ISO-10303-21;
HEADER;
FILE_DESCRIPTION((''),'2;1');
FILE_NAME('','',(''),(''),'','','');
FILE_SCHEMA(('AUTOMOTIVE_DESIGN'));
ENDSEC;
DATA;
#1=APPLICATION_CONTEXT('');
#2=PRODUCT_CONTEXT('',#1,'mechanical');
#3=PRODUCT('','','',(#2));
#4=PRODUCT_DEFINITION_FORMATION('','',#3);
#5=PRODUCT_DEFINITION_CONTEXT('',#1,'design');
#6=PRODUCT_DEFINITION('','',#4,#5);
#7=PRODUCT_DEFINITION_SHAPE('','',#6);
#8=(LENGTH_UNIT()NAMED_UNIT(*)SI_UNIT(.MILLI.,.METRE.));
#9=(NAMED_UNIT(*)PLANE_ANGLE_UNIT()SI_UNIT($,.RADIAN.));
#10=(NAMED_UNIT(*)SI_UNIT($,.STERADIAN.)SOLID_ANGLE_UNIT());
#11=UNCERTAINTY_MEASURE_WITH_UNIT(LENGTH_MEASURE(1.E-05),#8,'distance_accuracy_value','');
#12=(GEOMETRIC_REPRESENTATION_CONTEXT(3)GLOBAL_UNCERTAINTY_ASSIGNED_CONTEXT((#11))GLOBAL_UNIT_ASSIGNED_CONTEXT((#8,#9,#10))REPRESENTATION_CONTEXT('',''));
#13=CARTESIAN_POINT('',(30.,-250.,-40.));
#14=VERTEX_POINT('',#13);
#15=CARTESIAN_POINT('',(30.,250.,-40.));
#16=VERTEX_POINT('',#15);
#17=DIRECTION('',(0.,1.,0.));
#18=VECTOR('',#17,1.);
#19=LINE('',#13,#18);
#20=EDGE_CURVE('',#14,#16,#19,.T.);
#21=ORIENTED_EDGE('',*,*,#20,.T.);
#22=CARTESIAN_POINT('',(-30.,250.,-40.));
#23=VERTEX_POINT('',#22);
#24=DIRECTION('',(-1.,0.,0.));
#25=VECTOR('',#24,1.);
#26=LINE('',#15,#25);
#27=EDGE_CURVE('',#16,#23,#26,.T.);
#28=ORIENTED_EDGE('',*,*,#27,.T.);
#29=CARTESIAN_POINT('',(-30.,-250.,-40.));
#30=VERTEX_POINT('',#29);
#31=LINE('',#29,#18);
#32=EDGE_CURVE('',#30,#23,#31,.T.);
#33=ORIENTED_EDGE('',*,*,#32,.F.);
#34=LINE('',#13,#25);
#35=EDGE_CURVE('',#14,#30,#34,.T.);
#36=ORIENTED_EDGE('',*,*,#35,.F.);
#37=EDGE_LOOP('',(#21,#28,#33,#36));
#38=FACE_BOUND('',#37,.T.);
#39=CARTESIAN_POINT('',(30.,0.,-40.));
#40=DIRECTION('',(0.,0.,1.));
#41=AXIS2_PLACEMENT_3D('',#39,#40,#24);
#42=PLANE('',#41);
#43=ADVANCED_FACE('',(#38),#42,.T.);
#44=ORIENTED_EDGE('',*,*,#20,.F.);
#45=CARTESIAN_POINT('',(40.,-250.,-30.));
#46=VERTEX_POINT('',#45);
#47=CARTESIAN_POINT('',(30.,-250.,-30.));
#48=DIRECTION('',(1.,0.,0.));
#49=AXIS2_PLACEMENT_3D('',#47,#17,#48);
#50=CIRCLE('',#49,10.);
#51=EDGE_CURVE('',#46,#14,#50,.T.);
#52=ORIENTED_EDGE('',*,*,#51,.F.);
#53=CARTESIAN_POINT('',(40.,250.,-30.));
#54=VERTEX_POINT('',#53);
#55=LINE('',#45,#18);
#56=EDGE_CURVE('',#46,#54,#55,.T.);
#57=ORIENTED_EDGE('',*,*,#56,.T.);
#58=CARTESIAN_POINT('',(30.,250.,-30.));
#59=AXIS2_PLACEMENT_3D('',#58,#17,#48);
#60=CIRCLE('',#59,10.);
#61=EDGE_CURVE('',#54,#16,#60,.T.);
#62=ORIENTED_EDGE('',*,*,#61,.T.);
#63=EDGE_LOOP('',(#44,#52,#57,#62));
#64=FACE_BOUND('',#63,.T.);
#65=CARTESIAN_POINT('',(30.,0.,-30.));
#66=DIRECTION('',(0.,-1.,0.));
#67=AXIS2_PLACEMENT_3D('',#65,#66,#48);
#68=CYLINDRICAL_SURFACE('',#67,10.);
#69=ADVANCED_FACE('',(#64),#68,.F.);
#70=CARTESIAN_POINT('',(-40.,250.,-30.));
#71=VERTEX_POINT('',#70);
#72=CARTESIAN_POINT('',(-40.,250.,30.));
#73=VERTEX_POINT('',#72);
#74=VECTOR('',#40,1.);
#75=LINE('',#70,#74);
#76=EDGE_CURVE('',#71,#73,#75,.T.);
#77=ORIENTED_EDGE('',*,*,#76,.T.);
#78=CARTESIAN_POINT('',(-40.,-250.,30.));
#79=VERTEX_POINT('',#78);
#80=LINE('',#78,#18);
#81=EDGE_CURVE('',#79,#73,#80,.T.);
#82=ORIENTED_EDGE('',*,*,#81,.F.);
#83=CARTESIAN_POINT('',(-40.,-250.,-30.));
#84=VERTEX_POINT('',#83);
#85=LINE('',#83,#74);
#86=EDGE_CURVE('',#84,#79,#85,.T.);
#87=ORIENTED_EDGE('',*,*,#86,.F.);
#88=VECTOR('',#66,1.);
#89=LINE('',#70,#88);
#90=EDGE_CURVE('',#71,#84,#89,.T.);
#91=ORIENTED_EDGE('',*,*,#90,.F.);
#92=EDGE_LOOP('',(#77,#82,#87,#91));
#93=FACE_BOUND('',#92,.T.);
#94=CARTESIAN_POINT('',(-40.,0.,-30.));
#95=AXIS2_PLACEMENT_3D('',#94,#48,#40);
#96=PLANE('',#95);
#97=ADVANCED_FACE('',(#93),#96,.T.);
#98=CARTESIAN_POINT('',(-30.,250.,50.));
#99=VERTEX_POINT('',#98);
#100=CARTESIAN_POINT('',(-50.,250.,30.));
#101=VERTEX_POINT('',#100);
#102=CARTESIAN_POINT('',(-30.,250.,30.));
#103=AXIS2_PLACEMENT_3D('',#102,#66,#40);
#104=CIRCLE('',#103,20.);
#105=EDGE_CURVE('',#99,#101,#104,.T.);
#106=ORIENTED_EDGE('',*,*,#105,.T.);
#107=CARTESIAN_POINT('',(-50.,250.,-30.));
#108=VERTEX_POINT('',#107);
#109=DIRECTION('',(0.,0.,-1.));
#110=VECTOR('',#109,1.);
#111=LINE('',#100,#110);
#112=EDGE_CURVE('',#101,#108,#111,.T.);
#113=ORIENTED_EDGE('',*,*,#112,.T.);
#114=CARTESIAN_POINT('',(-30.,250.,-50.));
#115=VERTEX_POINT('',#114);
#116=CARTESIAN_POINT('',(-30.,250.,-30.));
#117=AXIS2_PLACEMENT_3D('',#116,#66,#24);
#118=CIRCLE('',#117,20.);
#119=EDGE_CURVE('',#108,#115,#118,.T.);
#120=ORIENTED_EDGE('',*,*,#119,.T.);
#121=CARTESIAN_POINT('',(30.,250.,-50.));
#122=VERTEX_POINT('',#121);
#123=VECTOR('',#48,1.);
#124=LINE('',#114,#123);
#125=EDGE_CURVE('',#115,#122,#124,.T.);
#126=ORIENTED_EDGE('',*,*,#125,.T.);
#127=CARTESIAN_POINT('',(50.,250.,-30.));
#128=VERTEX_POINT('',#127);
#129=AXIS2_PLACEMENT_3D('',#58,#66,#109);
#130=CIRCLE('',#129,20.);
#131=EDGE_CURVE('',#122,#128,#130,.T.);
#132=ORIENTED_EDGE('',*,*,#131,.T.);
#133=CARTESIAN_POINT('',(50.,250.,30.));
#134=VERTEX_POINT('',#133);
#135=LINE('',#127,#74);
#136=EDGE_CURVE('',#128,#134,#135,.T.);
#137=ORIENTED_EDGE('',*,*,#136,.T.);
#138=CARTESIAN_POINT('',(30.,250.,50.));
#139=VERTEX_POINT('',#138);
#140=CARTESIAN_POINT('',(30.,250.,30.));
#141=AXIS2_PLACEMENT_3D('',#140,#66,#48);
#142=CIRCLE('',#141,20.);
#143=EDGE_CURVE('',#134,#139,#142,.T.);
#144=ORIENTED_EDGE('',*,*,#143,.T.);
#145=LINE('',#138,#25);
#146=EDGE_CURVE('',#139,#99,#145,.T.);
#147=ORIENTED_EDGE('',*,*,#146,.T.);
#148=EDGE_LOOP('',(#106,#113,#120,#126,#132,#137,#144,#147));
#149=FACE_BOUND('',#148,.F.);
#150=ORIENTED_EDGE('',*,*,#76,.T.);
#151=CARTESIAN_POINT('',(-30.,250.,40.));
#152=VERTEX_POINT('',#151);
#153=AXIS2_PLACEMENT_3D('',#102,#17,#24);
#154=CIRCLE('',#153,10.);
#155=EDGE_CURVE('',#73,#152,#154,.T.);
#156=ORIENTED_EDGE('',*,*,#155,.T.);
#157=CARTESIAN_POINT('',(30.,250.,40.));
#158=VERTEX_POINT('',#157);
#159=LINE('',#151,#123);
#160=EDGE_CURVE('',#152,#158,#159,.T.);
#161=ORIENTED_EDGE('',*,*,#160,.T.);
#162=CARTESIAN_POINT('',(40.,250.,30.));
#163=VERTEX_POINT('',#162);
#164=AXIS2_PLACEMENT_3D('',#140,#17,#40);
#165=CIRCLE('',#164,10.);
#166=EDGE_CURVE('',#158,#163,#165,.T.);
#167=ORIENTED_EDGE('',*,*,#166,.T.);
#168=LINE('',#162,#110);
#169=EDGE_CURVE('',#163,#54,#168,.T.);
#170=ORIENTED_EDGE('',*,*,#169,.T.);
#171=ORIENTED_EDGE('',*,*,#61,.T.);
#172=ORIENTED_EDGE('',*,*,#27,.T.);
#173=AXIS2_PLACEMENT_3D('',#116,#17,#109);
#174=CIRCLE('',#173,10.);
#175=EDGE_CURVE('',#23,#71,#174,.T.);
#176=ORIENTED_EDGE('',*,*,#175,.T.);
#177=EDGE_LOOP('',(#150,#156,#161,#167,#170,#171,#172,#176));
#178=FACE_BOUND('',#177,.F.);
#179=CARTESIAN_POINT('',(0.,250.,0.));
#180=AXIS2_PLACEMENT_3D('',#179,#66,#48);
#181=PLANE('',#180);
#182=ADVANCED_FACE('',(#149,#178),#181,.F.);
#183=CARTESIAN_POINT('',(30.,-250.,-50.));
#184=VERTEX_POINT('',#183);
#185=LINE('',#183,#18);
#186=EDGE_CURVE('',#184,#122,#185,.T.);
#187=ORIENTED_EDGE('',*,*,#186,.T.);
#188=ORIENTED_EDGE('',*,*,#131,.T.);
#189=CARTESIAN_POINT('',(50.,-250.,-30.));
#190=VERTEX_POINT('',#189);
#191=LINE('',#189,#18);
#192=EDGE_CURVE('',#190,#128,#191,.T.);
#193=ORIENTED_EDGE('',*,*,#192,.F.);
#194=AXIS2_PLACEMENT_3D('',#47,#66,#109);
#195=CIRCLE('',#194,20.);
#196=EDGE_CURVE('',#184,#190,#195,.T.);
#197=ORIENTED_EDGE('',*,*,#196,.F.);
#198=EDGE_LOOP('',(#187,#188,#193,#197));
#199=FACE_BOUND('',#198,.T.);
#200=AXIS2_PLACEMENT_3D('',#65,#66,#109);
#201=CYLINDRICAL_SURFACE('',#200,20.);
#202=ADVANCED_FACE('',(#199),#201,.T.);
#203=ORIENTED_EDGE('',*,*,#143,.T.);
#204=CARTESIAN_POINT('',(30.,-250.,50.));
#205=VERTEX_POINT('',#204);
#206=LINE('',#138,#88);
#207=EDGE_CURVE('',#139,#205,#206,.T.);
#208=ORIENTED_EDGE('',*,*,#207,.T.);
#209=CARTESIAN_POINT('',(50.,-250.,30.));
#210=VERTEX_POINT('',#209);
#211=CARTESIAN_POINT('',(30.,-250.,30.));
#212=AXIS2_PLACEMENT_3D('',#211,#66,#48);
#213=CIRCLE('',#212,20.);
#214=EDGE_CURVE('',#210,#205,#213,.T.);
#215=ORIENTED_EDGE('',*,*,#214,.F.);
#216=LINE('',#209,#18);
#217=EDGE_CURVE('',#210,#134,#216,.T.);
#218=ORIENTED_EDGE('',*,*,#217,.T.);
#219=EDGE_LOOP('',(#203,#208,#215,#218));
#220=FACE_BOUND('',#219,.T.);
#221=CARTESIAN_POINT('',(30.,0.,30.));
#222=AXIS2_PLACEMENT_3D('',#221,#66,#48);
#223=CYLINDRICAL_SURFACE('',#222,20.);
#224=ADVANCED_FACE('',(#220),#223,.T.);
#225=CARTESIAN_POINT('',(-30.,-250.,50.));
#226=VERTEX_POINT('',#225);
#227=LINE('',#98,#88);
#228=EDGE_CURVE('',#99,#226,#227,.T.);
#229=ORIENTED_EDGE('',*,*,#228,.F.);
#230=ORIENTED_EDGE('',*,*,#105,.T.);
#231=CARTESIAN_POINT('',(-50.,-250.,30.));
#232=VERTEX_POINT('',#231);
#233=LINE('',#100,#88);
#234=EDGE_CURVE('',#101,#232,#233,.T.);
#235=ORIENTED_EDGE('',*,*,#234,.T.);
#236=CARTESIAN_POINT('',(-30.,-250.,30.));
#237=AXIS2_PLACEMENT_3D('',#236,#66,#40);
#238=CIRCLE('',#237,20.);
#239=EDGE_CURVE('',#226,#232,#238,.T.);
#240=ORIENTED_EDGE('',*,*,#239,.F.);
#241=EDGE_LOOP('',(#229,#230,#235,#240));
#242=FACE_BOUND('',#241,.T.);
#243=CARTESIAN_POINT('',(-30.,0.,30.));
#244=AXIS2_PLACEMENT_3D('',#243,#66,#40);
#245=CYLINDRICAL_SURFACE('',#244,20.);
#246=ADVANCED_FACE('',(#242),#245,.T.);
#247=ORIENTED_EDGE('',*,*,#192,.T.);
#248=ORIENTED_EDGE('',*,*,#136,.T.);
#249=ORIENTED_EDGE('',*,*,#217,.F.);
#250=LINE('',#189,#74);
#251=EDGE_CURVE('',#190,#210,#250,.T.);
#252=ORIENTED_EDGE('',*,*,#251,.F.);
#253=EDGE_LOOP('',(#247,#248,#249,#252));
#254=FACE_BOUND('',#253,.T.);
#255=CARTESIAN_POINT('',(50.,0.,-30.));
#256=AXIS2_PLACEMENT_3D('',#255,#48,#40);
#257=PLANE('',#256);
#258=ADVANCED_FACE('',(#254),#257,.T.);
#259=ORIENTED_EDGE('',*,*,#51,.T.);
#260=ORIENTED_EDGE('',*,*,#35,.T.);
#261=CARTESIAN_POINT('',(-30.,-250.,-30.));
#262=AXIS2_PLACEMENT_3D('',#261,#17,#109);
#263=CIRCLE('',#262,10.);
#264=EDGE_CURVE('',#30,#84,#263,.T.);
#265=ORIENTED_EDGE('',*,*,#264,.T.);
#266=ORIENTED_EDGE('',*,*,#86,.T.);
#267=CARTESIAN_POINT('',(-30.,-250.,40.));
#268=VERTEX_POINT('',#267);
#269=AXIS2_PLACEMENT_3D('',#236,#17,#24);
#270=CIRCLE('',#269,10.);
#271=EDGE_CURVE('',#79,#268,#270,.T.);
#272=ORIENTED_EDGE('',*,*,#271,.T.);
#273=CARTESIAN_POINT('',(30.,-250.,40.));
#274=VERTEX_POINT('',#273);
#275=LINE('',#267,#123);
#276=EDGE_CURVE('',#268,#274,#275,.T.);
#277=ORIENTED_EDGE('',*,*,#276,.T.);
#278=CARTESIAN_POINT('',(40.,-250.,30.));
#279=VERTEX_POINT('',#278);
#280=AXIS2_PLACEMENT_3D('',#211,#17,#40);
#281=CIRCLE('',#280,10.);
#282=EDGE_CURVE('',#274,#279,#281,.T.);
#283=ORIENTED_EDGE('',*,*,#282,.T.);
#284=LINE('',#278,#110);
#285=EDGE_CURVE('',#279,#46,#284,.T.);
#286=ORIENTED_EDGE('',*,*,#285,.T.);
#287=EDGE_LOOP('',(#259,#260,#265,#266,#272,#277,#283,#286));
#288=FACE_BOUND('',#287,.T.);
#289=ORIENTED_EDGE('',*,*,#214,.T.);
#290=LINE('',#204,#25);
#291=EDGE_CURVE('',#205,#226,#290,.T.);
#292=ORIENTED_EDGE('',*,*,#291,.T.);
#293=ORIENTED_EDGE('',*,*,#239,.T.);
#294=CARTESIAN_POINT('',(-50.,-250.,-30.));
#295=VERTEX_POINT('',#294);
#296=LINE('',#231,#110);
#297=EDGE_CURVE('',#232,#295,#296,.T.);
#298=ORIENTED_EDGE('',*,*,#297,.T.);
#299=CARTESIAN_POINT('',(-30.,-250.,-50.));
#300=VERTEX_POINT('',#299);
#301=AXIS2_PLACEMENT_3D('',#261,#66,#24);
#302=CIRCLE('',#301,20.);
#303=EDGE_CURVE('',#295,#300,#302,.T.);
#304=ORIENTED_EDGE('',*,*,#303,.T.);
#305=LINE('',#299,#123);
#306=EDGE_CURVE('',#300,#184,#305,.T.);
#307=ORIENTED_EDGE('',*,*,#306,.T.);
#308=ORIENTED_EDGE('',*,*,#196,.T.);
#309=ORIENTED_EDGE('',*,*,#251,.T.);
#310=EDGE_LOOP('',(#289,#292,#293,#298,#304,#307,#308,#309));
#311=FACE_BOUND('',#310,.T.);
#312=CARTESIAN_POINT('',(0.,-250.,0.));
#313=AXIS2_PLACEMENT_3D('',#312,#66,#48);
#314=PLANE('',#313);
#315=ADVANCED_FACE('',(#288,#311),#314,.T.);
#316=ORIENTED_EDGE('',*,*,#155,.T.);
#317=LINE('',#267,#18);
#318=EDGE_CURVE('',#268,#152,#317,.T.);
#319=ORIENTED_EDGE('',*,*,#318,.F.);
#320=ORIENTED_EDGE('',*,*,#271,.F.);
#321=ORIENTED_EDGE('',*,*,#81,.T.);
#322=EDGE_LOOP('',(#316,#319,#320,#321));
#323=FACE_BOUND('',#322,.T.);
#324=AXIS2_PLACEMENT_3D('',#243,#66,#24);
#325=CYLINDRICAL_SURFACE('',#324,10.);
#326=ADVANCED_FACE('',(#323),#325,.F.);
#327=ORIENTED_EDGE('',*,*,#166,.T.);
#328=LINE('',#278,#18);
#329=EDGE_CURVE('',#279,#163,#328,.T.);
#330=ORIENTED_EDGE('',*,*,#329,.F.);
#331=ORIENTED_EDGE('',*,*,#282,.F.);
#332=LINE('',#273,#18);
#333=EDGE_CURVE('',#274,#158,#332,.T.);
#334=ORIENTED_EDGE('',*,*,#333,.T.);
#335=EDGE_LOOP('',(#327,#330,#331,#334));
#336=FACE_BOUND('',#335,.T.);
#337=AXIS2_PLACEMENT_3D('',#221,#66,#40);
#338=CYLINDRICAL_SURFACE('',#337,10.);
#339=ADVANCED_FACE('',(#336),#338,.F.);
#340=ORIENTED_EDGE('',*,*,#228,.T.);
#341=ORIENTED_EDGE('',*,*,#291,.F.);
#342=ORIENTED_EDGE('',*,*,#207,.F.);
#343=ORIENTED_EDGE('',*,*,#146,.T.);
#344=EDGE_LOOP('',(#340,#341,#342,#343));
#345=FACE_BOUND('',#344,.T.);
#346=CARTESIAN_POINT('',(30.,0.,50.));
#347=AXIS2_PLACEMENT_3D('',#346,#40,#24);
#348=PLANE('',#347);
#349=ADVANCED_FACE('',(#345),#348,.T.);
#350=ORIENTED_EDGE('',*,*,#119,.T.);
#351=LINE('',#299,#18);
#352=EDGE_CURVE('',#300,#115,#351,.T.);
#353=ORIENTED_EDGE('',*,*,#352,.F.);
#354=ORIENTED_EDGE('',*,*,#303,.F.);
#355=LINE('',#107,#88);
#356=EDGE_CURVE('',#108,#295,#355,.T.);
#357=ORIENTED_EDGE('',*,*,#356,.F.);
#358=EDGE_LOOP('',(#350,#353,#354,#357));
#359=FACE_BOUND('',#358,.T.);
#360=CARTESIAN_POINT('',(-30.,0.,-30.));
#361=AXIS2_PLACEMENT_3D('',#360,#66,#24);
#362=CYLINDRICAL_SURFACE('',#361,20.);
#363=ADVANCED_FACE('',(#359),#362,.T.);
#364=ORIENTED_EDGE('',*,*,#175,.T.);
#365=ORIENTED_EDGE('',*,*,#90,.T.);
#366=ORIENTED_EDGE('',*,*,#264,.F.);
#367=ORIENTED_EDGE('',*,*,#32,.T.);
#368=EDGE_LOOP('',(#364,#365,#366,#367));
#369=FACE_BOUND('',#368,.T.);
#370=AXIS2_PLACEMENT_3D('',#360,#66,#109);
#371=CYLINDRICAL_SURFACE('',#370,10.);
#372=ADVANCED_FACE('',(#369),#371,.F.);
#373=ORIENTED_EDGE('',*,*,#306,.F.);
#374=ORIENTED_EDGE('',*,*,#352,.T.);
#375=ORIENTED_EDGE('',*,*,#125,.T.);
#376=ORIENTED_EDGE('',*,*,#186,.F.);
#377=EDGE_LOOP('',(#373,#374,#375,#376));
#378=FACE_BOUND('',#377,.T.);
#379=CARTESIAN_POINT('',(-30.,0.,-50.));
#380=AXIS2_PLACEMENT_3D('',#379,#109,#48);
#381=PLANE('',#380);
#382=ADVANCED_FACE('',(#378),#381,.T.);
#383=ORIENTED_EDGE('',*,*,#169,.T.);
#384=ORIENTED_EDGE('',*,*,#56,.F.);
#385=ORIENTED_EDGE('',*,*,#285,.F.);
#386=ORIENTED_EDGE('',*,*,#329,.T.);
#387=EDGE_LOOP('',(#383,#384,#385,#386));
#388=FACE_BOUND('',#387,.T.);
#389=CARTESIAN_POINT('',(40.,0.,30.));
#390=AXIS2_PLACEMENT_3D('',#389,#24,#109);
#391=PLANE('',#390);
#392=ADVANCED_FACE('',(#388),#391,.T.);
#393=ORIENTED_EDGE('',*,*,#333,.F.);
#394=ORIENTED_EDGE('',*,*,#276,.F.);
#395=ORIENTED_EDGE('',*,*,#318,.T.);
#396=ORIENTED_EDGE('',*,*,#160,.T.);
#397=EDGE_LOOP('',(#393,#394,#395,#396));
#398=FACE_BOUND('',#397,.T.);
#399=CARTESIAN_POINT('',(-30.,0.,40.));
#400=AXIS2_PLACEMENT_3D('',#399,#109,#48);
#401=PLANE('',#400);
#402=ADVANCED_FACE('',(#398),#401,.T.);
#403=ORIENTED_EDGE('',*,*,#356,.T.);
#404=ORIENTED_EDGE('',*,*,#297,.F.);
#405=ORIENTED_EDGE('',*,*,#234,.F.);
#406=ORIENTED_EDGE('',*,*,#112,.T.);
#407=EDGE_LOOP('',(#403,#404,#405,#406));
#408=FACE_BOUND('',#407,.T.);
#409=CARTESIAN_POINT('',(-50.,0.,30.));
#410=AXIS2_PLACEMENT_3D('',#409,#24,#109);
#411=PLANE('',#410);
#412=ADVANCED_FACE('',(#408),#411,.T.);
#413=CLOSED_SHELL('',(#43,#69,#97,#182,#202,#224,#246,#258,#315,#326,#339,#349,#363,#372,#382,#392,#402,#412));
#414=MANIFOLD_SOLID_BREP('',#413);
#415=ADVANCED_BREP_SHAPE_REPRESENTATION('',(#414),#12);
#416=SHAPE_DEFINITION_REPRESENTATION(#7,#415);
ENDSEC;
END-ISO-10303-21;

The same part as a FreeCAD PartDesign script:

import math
import FreeCAD as App
import Part
import Sketcher
from FreeCAD import Vector
Q = App.Units.Quantity

doc = App.newDocument("Part")
body = doc.addObject("PartDesign::Body", "Body")

# Sketch on XZ plane
sketch1 = body.newObject("Sketcher::SketchObject", "Sketch")
sketch1.AttachmentSupport = (doc.getObject("XZ_Plane"), [""])
sketch1.MapMode = "FlatFace"
sketch1.addGeometry(Part.ArcOfCircle(Part.Circle(Vector(30, 30, 0), Vector(0, 0, 1), 20), math.radians(0), math.radians(90)), False)
sketch1.addGeometry(Part.LineSegment(Vector(30, 50, 0), Vector(-30, 50, 0)), False)
sketch1.addGeometry(Part.ArcOfCircle(Part.Circle(Vector(-30, 30, 0), Vector(0, 0, 1), 20), math.radians(90), math.radians(180)), False)
sketch1.addGeometry(Part.LineSegment(Vector(-50, 30, 0), Vector(-50, -30, 0)), False)
sketch1.addGeometry(Part.ArcOfCircle(Part.Circle(Vector(-30, -30, 0), Vector(0, 0, 1), 20), math.radians(180), math.radians(270)), False)
sketch1.addGeometry(Part.LineSegment(Vector(-30, -50, 0), Vector(30, -50, 0)), False)
sketch1.addGeometry(Part.ArcOfCircle(Part.Circle(Vector(30, -30, 0), Vector(0, 0, 1), 20), math.radians(-90), math.radians(0)), False)
sketch1.addGeometry(Part.LineSegment(Vector(50, -30, 0), Vector(50, 30, 0)), False)
sketch1.addGeometry(Part.ArcOfCircle(Part.Circle(Vector(-30, -30, 0), Vector(0, 0, 1), 10), math.radians(180), math.radians(270)), False)
sketch1.addGeometry(Part.LineSegment(Vector(-40, -30, 0), Vector(-40, 30, 0)), False)
sketch1.addGeometry(Part.ArcOfCircle(Part.Circle(Vector(-30, 30, 0), Vector(0, 0, 1), 10), math.radians(90), math.radians(180)), False)
sketch1.addGeometry(Part.LineSegment(Vector(-30, 40, 0), Vector(30, 40, 0)), False)
sketch1.addGeometry(Part.ArcOfCircle(Part.Circle(Vector(30, 30, 0), Vector(0, 0, 1), 10), math.radians(0), math.radians(90)), False)
sketch1.addGeometry(Part.LineSegment(Vector(40, 30, 0), Vector(40, -30, 0)), False)
sketch1.addGeometry(Part.ArcOfCircle(Part.Circle(Vector(30, -30, 0), Vector(0, 0, 1), 10), math.radians(-90), math.radians(0)), False)
sketch1.addGeometry(Part.LineSegment(Vector(30, -40, 0), Vector(-30, -40, 0)), False)
sketch1.addConstraint(Sketcher.Constraint("Tangent", 0, 2, 1, 1))
sketch1.addConstraint(Sketcher.Constraint("Tangent", 1, 2, 2, 1))
sketch1.addConstraint(Sketcher.Constraint("Tangent", 2, 2, 3, 1))
sketch1.addConstraint(Sketcher.Constraint("Tangent", 3, 2, 4, 1))
sketch1.addConstraint(Sketcher.Constraint("Tangent", 4, 2, 5, 1))
sketch1.addConstraint(Sketcher.Constraint("Tangent", 5, 2, 6, 1))
sketch1.addConstraint(Sketcher.Constraint("Tangent", 6, 2, 7, 1))
sketch1.addConstraint(Sketcher.Constraint("Tangent", 7, 2, 0, 1))
sketch1.addConstraint(Sketcher.Constraint("Tangent", 8, 1, 9, 1))
sketch1.addConstraint(Sketcher.Constraint("Tangent", 9, 2, 10, 2))
sketch1.addConstraint(Sketcher.Constraint("Tangent", 10, 1, 11, 1))
sketch1.addConstraint(Sketcher.Constraint("Tangent", 11, 2, 12, 2))
sketch1.addConstraint(Sketcher.Constraint("Tangent", 12, 1, 13, 1))
sketch1.addConstraint(Sketcher.Constraint("Tangent", 13, 2, 14, 2))
sketch1.addConstraint(Sketcher.Constraint("Tangent", 14, 1, 15, 1))
sketch1.addConstraint(Sketcher.Constraint("Tangent", 15, 2, 8, 2))
sketch1.addConstraint(Sketcher.Constraint("Horizontal", 1))
sketch1.addConstraint(Sketcher.Constraint("Vertical", 3))
sketch1.addConstraint(Sketcher.Constraint("Horizontal", 5))
sketch1.addConstraint(Sketcher.Constraint("Vertical", 7))
sketch1.addConstraint(Sketcher.Constraint("Vertical", 9))
sketch1.addConstraint(Sketcher.Constraint("Horizontal", 11))
sketch1.addConstraint(Sketcher.Constraint("Vertical", 13))
sketch1.addConstraint(Sketcher.Constraint("Horizontal", 15))
sketch1.addConstraint(Sketcher.Constraint("Coincident", 8, 3, 4, 3))
sketch1.addConstraint(Sketcher.Constraint("Coincident", 10, 3, 2, 3))
sketch1.addConstraint(Sketcher.Constraint("Coincident", 12, 3, 0, 3))
sketch1.addConstraint(Sketcher.Constraint("Equal", 0, 2))
sketch1.addConstraint(Sketcher.Constraint("Equal", 2, 4))
sketch1.addConstraint(Sketcher.Constraint("Equal", 4, 6))
sketch1.addConstraint(Sketcher.Constraint("Equal", 12, 14))
sketch1.addConstraint(Sketcher.Constraint("Symmetric", 0, 3, 4, 3, -1, 1))
sketch1.addConstraint(Sketcher.Constraint("Equal", 15, 3))
sketch1.addConstraint(Sketcher.Constraint("Radius", 0, Q("20 mm")))
sketch1.addConstraint(Sketcher.Constraint("Radius", 8, Q("10 mm")))
sketch1.addConstraint(Sketcher.Constraint("DistanceX", 1, 2, 1, 1, Q("60 mm")))
pad1 = body.newObject("PartDesign::Pad", "Pad")
pad1.Profile = sketch1
pad1.Length = 500
pad1.Midplane = True

doc.recompute()
